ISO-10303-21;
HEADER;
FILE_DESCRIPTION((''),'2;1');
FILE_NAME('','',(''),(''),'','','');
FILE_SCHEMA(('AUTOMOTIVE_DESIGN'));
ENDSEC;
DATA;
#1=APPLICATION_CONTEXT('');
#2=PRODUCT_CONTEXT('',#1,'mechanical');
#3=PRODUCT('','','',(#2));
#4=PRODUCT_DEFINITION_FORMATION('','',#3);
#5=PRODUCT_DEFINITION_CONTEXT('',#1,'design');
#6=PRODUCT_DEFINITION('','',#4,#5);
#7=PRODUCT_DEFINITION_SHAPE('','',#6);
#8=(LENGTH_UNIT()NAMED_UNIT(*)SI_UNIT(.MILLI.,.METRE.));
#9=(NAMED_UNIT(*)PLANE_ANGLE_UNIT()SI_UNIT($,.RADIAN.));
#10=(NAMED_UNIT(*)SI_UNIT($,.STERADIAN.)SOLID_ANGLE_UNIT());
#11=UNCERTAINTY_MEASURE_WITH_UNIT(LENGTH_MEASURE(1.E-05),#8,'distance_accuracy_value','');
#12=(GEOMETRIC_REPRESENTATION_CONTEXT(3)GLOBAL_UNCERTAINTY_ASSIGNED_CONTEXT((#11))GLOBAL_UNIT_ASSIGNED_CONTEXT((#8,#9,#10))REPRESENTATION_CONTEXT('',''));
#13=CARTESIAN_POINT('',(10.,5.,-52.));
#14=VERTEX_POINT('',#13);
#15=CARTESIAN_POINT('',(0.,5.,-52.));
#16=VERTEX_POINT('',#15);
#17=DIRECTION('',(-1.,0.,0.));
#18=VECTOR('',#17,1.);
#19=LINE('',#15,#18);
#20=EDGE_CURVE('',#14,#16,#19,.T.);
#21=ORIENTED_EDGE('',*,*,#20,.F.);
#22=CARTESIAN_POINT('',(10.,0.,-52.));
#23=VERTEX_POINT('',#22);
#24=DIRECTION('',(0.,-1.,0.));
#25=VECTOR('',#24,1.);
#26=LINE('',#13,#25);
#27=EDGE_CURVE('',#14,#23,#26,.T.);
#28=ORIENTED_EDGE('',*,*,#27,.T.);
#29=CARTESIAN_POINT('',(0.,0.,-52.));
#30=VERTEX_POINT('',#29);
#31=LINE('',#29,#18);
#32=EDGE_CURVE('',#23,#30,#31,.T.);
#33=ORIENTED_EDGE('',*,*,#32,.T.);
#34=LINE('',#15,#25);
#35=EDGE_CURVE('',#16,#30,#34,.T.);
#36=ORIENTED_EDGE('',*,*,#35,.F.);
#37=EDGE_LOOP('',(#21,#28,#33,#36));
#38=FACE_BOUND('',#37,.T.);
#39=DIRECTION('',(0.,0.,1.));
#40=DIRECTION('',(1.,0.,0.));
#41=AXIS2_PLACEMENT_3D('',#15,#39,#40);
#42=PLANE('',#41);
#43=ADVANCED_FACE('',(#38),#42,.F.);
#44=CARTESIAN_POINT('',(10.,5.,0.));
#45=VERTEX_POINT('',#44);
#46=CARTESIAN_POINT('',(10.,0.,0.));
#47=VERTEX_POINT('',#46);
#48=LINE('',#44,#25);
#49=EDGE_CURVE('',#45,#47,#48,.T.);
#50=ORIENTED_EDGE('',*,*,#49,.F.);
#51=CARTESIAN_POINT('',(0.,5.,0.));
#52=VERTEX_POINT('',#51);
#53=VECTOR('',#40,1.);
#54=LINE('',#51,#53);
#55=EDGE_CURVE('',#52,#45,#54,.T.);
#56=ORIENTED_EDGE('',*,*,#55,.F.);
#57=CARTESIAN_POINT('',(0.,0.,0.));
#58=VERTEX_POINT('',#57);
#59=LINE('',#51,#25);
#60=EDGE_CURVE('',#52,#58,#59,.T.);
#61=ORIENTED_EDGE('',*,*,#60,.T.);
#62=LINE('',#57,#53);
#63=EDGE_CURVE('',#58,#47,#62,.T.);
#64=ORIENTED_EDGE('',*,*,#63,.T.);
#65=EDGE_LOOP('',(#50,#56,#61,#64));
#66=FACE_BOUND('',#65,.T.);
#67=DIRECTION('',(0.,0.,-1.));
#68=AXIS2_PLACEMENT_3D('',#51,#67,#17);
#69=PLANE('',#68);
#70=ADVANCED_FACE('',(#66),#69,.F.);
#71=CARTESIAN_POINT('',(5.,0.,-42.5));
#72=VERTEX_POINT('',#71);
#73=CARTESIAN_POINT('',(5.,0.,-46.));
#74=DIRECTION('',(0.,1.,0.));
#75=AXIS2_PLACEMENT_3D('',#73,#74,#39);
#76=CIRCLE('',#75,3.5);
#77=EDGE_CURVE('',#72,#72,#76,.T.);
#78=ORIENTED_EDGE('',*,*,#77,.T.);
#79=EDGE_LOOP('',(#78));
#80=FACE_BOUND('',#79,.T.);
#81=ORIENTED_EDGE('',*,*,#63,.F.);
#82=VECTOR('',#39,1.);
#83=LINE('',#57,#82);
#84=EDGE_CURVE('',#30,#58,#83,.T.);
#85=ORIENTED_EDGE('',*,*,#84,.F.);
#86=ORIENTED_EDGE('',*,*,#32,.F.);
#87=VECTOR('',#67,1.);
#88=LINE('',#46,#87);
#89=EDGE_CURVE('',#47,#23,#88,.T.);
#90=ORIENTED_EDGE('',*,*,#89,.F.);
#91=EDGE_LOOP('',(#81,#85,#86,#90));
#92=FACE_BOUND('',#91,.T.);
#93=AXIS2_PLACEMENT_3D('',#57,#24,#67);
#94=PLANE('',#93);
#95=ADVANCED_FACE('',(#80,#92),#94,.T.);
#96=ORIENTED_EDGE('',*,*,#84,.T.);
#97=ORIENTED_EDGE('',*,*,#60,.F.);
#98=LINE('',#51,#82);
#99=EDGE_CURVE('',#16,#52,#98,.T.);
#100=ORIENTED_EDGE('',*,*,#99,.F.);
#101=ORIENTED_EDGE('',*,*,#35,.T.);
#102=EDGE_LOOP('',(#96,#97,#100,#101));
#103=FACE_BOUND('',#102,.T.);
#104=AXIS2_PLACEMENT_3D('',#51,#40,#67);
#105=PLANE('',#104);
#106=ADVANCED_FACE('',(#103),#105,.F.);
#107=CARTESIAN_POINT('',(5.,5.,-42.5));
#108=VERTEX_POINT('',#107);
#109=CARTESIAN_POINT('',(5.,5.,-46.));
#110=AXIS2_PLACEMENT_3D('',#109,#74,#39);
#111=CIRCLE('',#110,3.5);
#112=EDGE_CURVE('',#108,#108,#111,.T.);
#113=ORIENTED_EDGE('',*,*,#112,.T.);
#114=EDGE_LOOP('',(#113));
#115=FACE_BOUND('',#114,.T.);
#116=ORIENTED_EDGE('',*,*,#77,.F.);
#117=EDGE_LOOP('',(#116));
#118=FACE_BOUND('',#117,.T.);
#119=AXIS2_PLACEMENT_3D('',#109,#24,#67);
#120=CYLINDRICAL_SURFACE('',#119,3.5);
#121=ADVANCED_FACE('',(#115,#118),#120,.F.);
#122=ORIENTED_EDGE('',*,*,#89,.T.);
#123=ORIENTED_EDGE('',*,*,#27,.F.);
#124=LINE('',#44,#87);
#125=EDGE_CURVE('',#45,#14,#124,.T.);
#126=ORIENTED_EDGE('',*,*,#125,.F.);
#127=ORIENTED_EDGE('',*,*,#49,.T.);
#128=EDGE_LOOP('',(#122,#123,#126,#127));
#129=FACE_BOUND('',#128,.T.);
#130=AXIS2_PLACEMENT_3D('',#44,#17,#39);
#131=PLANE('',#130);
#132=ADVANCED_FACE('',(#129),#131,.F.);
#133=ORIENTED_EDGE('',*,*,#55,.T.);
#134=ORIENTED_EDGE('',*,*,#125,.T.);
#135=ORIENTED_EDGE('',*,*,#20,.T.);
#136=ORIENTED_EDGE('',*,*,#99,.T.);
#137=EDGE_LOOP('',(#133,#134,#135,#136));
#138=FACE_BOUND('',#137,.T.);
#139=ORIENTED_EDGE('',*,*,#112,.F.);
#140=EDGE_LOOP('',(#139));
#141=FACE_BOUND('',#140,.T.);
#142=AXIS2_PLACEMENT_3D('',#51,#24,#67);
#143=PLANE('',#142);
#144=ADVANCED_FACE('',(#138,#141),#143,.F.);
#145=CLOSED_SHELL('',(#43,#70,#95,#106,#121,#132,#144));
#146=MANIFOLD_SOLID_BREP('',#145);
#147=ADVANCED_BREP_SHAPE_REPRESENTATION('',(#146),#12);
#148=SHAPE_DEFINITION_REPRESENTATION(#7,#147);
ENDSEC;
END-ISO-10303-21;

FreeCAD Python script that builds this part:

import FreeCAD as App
import Part
import Sketcher

V = App.Vector

doc = App.newDocument("Part")
body = doc.addObject("PartDesign::Body", "Body")

# Sketch on XZ plane
sketch1 = doc.addObject("Sketcher::SketchObject", "Sketch")
body.addObject(sketch1)
sketch1.AttachmentSupport = (doc.XZ_Plane, [""])
sketch1.MapMode = "FlatFace"
sketch1.addGeometry([
    Part.LineSegment(V(0, -52, 0), V(0, 0, 0)),  # 0
    Part.LineSegment(V(0, 0, 0), V(10, 0, 0)),  # 1
    Part.LineSegment(V(10, 0, 0), V(10, -52, 0)),  # 2
    Part.LineSegment(V(10, -52, 0), V(0, -52, 0)),  # 3
    Part.Circle(V(5, -46, 0), V(0, 0, 1), 3.5),  # 4
], False)
sketch1.addConstraint([
    Sketcher.Constraint("Coincident", 0, 2, 1, 1),
    Sketcher.Constraint("Coincident", 1, 2, 2, 1),
    Sketcher.Constraint("Coincident", 2, 2, 3, 1),
    Sketcher.Constraint("Coincident", 3, 2, 0, 1),
    Sketcher.Constraint("Vertical", 0),
    Sketcher.Constraint("Horizontal", 1),
    Sketcher.Constraint("Vertical", 2),
    Sketcher.Constraint("Horizontal", 3),
    Sketcher.Constraint("Coincident", 0, 2, -1, 1),
    Sketcher.Constraint("Diameter", 4, 7.0),
    Sketcher.Constraint("DistanceX", 1, 1, 1, 2, 10.0),
    Sketcher.Constraint("DistanceY", 0, 1, 0, 2, 52.0),
    Sketcher.Constraint("DistanceX", -1, 1, 4, 3, 5.0),
    Sketcher.Constraint("DistanceY", 4, 3, -1, 1, 46.0),
])
pad1 = doc.addObject("PartDesign::Pad", "Pad")
body.addObject(pad1)
pad1.Profile = sketch1
pad1.Length = 5
pad1.Reversed = True

doc.recompute()
